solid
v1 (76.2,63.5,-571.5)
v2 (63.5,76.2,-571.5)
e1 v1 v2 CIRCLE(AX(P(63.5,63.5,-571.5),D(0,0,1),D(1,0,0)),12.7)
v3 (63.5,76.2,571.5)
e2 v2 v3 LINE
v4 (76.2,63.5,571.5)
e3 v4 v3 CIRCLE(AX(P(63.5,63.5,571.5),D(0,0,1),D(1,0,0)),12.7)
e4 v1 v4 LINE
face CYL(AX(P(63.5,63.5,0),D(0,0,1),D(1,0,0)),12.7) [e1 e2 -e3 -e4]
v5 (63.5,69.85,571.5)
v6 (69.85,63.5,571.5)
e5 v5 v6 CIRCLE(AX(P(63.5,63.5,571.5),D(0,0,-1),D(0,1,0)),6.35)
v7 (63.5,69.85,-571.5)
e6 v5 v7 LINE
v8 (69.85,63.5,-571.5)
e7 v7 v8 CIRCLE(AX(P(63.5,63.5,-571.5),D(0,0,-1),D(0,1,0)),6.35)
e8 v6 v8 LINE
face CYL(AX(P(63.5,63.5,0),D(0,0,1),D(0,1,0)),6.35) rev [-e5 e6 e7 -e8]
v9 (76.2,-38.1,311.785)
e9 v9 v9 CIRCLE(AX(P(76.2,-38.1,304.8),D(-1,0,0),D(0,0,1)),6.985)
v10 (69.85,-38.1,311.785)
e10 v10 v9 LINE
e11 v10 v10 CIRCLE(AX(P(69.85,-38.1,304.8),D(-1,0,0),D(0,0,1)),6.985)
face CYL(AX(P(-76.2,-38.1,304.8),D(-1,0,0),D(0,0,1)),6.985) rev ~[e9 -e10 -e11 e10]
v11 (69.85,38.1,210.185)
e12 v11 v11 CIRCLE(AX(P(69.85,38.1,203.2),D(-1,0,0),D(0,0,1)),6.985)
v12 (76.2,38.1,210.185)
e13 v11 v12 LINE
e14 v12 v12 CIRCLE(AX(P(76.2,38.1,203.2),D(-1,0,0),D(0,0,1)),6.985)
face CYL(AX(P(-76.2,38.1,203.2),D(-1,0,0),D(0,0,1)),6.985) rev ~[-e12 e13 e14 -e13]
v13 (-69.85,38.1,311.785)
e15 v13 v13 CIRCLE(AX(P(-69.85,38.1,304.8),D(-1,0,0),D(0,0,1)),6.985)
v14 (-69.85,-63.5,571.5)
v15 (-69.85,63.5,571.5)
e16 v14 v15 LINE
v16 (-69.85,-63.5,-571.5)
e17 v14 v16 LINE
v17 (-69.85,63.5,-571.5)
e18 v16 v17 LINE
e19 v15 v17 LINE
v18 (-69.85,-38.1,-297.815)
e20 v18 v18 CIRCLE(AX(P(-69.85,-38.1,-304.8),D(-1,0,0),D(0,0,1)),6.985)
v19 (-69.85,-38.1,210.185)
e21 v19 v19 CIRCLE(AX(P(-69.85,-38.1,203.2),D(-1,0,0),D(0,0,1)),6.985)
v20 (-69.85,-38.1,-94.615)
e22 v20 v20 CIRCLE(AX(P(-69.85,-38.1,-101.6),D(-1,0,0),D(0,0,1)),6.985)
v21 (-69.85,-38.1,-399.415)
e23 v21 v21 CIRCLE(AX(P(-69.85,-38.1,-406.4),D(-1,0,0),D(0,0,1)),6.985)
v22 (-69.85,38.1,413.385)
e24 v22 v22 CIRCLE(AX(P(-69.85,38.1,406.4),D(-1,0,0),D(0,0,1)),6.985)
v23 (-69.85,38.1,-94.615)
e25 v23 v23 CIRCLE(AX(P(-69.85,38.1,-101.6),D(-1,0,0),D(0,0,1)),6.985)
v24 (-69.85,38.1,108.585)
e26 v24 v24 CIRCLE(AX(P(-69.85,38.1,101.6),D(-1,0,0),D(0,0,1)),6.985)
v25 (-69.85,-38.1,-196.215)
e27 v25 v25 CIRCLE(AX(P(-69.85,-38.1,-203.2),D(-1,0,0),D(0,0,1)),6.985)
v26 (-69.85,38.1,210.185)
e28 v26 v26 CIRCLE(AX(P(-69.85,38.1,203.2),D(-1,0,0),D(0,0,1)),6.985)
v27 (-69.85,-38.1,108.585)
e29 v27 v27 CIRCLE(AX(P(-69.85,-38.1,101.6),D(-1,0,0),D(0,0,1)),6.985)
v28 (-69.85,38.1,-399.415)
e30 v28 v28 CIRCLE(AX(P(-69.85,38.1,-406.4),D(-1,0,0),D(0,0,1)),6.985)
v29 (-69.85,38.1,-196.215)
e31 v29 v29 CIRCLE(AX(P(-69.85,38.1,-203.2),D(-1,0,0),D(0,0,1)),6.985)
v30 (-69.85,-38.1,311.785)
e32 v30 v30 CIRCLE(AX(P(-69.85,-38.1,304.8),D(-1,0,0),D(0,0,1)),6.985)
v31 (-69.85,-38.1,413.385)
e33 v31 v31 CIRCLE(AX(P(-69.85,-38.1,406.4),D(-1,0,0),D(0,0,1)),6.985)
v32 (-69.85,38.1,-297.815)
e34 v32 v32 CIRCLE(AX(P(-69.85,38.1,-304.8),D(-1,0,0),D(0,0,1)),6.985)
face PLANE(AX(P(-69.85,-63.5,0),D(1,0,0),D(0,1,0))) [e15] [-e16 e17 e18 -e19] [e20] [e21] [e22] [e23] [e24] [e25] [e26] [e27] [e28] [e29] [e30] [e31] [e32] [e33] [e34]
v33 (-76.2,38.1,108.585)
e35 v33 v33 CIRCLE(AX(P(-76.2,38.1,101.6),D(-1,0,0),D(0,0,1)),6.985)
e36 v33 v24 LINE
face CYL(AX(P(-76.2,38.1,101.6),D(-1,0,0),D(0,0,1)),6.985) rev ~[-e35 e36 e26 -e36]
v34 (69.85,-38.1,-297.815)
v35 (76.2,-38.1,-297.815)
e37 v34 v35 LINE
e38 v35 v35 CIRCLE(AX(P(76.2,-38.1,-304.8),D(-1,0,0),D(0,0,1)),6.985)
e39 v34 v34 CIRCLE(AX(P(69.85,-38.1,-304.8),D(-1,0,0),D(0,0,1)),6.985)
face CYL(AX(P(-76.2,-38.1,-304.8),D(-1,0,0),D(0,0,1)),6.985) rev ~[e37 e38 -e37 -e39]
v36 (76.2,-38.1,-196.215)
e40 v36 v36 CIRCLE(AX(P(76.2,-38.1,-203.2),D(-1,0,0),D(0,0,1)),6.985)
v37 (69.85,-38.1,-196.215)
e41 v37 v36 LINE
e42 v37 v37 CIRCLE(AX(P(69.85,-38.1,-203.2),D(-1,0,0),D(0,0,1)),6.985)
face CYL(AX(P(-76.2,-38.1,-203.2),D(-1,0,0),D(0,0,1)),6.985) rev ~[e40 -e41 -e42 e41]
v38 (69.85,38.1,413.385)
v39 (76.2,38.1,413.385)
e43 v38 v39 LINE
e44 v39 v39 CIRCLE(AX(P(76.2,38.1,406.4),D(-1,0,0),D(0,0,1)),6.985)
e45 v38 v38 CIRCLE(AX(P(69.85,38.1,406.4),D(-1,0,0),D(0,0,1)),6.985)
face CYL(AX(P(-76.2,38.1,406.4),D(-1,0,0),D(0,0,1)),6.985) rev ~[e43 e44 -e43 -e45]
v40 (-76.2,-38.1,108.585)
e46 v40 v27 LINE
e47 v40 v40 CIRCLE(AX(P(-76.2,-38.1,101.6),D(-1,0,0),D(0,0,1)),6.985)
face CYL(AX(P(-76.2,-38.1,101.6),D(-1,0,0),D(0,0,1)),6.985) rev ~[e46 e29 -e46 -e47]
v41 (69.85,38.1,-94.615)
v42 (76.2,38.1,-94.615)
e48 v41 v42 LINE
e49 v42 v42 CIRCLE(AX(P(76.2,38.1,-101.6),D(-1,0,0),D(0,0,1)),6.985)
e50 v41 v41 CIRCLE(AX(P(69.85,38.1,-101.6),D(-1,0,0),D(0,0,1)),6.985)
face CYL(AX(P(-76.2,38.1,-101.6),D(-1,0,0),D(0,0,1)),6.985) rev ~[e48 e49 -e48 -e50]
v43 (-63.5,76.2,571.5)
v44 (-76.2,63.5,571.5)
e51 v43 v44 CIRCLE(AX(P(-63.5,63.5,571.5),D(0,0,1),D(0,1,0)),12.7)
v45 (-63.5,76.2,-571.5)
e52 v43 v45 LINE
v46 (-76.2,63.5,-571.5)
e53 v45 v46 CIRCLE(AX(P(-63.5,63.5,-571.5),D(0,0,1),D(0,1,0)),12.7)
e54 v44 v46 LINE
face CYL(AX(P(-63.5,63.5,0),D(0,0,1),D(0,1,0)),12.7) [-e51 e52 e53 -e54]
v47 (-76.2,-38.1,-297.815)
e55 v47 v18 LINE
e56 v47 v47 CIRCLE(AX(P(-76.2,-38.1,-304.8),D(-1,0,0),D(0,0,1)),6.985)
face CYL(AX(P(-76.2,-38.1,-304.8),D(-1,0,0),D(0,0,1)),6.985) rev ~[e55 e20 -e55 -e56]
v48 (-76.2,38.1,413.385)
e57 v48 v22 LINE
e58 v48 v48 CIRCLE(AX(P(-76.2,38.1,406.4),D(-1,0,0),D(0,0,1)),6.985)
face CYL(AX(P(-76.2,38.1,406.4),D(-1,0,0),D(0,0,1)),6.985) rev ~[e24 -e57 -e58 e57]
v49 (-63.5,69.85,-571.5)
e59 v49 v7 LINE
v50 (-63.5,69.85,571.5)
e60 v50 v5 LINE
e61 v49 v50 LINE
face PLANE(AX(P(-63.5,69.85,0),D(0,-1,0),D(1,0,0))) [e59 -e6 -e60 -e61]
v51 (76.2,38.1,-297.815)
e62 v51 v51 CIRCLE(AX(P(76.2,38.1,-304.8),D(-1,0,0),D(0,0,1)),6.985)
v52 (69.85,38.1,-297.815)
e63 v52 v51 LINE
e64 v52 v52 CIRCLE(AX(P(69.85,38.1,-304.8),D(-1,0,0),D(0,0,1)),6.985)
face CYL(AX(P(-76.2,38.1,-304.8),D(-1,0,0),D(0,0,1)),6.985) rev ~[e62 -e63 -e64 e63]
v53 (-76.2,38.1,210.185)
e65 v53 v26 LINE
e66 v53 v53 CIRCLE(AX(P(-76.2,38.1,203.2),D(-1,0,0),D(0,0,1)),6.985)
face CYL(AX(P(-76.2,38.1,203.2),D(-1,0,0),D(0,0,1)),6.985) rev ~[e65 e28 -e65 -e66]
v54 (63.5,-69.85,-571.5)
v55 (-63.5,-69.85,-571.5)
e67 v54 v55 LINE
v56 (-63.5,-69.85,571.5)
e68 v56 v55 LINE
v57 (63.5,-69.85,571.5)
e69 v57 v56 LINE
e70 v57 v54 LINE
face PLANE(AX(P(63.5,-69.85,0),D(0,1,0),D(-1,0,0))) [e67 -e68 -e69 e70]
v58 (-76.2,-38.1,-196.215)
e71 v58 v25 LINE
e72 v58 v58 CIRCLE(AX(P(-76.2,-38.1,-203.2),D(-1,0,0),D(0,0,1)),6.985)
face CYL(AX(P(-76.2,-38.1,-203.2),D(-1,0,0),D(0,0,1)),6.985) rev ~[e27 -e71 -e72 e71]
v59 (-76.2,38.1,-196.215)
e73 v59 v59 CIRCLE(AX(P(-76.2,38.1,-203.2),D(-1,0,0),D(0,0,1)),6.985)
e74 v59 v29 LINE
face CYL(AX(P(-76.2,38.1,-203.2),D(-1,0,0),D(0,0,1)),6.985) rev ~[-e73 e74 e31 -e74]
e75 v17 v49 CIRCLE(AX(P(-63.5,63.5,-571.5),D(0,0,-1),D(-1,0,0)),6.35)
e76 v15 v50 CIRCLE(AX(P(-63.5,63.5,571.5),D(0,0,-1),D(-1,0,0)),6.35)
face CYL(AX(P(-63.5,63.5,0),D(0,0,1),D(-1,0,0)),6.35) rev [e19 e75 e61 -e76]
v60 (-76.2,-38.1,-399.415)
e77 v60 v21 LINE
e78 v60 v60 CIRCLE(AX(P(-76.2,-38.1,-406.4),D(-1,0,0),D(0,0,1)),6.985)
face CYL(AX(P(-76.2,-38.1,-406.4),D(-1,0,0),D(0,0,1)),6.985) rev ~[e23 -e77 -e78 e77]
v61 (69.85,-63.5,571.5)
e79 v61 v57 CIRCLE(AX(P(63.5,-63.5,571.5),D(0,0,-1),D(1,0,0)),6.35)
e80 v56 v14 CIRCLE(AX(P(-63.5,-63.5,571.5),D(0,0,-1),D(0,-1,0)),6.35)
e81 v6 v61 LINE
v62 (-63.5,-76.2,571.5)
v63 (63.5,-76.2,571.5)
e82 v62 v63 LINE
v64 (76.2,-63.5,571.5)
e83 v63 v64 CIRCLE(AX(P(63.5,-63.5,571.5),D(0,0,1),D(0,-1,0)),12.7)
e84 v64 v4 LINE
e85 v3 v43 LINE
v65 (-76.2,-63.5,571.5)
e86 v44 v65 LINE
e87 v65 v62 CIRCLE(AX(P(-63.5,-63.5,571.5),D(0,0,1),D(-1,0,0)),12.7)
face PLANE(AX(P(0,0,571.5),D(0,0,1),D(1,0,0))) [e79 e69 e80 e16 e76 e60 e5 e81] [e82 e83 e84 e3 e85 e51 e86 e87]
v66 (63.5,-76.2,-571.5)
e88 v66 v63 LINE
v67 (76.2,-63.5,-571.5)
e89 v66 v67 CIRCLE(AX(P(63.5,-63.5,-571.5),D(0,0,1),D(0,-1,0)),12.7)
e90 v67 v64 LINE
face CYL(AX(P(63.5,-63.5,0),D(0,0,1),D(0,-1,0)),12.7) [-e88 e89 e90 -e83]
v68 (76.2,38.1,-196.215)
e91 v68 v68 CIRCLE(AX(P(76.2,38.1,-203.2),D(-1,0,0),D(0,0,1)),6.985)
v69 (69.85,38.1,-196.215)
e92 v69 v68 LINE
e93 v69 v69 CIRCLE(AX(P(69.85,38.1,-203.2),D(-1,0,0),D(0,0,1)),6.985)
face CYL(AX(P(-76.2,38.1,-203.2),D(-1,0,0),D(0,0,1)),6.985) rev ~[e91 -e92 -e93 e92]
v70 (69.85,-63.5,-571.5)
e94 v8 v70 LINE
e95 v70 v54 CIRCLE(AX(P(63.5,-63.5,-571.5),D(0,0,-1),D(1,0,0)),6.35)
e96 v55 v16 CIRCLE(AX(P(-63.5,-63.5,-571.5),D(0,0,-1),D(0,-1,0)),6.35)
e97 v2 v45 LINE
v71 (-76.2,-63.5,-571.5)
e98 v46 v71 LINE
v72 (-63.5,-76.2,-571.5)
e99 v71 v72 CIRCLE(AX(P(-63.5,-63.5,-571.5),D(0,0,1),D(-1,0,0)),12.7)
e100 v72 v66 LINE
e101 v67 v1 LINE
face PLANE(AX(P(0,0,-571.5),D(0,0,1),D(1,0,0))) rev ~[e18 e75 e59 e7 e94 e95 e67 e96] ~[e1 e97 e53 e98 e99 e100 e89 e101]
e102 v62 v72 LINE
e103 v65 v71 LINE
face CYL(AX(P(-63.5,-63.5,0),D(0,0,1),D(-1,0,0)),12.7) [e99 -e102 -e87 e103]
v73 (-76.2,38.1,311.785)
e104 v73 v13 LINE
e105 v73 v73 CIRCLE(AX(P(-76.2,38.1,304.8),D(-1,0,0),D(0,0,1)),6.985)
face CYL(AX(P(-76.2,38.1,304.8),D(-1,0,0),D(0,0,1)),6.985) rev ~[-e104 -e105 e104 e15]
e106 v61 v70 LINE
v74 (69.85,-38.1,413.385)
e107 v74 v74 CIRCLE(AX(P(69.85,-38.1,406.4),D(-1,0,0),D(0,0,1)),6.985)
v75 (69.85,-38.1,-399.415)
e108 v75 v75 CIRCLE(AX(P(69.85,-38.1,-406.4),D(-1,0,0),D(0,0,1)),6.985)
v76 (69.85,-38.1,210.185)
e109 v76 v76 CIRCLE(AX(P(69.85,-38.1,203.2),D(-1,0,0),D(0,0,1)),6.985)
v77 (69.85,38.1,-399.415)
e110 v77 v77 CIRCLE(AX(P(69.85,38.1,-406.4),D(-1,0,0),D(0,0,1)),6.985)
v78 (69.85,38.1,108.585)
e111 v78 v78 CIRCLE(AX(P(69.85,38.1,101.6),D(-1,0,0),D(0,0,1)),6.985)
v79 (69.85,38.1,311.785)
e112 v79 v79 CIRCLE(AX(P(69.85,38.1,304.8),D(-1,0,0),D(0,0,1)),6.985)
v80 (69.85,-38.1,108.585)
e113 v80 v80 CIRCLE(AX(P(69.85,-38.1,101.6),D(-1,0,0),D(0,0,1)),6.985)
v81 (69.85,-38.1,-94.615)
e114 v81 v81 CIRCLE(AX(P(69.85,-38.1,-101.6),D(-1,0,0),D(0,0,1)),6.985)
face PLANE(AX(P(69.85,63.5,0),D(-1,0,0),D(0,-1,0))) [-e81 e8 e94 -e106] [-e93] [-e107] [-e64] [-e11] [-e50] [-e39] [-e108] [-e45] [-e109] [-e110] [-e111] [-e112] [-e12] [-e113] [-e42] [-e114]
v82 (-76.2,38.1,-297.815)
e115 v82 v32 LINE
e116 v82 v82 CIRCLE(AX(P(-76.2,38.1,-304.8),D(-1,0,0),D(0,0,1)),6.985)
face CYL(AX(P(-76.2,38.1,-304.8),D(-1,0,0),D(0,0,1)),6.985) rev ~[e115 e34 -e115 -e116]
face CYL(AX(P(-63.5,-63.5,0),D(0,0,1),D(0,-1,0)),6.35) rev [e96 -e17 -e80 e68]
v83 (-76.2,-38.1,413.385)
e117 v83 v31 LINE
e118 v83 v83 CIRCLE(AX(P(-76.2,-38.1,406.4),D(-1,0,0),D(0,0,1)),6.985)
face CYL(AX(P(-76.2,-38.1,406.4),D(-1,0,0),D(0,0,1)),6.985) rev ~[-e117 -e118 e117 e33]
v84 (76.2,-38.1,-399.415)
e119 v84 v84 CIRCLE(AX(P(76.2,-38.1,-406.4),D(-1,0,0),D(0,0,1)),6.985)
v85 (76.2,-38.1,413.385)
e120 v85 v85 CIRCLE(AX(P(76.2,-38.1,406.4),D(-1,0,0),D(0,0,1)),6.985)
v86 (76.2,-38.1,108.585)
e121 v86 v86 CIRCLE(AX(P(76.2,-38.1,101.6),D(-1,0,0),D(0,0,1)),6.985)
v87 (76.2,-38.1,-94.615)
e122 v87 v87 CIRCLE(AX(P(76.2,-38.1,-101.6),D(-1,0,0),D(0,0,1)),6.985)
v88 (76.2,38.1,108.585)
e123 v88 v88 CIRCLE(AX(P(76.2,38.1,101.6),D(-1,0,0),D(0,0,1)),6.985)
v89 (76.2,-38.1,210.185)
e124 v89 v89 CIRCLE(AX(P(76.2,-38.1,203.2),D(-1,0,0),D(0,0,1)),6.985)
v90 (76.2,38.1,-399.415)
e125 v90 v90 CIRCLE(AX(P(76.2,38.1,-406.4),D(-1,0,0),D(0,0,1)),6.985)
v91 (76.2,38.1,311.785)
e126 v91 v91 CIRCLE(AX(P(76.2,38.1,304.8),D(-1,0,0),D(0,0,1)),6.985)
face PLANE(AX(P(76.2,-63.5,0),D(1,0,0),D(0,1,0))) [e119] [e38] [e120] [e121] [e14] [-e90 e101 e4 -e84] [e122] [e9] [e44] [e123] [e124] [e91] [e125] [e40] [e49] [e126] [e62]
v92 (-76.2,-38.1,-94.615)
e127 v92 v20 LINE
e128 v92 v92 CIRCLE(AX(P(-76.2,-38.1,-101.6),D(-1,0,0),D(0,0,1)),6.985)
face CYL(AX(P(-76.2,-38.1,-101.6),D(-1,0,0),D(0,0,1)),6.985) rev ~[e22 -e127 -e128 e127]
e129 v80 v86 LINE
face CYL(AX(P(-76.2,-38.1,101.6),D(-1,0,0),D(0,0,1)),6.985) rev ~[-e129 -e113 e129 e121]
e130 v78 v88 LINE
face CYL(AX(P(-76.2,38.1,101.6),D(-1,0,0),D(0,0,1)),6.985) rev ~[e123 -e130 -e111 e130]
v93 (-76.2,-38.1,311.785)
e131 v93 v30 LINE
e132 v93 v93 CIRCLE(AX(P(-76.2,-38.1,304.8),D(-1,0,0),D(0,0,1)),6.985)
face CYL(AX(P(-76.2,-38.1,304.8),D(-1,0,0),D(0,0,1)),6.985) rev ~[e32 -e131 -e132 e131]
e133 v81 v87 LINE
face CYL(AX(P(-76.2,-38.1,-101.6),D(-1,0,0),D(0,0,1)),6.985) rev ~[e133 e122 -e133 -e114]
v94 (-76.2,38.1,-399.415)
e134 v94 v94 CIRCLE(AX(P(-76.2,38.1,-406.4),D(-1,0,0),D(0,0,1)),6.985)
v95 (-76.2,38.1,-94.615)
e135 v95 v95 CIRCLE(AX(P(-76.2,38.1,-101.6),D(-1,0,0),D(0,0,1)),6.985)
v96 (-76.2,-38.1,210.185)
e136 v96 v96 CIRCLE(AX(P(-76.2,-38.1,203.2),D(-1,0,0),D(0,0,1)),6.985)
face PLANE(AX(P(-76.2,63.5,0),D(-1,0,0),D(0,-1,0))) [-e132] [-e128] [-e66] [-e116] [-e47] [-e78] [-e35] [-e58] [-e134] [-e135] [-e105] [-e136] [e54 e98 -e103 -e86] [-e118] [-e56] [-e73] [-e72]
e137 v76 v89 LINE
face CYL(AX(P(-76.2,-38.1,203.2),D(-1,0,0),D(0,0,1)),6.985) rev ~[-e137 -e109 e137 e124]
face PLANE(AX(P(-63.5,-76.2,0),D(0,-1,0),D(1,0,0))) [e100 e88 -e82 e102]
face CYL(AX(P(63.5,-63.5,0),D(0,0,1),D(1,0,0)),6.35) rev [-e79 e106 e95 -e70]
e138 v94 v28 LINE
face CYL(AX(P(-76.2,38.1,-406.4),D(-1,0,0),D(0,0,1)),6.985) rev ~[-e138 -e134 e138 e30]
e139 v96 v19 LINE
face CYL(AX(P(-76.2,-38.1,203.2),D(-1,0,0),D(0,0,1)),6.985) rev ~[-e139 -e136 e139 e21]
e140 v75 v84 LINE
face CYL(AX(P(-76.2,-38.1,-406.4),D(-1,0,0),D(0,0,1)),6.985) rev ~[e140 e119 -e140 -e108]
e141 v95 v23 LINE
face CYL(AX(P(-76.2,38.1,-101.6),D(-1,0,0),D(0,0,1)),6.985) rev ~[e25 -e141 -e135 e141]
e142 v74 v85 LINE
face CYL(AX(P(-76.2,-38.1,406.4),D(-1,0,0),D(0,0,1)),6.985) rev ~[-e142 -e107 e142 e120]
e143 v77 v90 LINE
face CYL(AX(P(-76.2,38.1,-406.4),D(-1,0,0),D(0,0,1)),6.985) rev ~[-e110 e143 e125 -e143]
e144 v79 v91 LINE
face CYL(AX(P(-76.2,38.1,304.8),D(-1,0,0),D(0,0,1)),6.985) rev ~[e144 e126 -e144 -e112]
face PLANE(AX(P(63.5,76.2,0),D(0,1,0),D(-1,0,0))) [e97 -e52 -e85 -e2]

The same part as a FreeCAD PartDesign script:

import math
import FreeCAD as App
import Part
import Sketcher
Q = App.Units.Quantity

doc = App.newDocument("Part")
params = doc.addObject("Spreadsheet::Sheet", "Params")
for row, (alias, value) in enumerate([
    ("sketch1_radius", "0.5 in"),
    ("sketch1_width", "5 in"),
    ("sketch1_radius2", "0.25 in"),
    ("pad1_length", "45 in"),
    ("sketch2_diameter", "0.55 in"),
], start=1):
    params.set(f"A{row}", alias)
    params.set(f"B{row}", "=" + value)
    params.setAlias(f"B{row}", alias)

body = doc.addObject("PartDesign::Body", "Body")

sketch1 = body.newObject("Sketcher::SketchObject", "Sketch")
sketch1.AttachmentSupport = (doc.getObject("XY_Plane"), [""])
sketch1.MapMode = "FlatFace"
sketch1.addGeometry([
    Part.LineSegment(App.Vector(-64, -76, 0), App.Vector(64, -76, 0)),
    Part.ArcOfCircle(Part.Circle(App.Vector(64, -64, 0), App.Vector(0, 0, 1), 13), math.radians(-90), math.radians(0)),
    Part.LineSegment(App.Vector(76, -64, 0), App.Vector(76, 64, 0)),
    Part.ArcOfCircle(Part.Circle(App.Vector(64, 64, 0), App.Vector(0, 0, 1), 13), math.radians(0), math.radians(90)),
    Part.LineSegment(App.Vector(64, 76, 0), App.Vector(-64, 76, 0)),
    Part.ArcOfCircle(Part.Circle(App.Vector(-64, 64, 0), App.Vector(0, 0, 1), 13), math.radians(90), math.radians(180)),
    Part.LineSegment(App.Vector(-76, 64, 0), App.Vector(-76, -64, 0)),
    Part.ArcOfCircle(Part.Circle(App.Vector(-64, -64, 0), App.Vector(0, 0, 1), 13), math.radians(180), math.radians(270)),
    Part.ArcOfCircle(Part.Circle(App.Vector(-64, 64, 0), App.Vector(0, 0, 1), 6), math.radians(90), math.radians(180)),
    Part.LineSegment(App.Vector(-64, 70, 0), App.Vector(64, 70, 0)),
    Part.ArcOfCircle(Part.Circle(App.Vector(64, 64, 0), App.Vector(0, 0, 1), 6), math.radians(0), math.radians(90)),
    Part.LineSegment(App.Vector(70, 64, 0), App.Vector(70, -64, 0)),
    Part.ArcOfCircle(Part.Circle(App.Vector(64, -64, 0), App.Vector(0, 0, 1), 6), math.radians(-90), math.radians(0)),
    Part.LineSegment(App.Vector(64, -70, 0), App.Vector(-64, -70, 0)),
    Part.ArcOfCircle(Part.Circle(App.Vector(-64, -64, 0), App.Vector(0, 0, 1), 6), math.radians(180), math.radians(270)),
    Part.LineSegment(App.Vector(-70, -64, 0), App.Vector(-70, 64, 0)),
], False)
sketch1.addConstraint([
    Sketcher.Constraint("Tangent", 0, 2, 1, 1),
    Sketcher.Constraint("Tangent", 1, 2, 2, 1),
    Sketcher.Constraint("Tangent", 2, 2, 3, 1),
    Sketcher.Constraint("Tangent", 3, 2, 4, 1),
    Sketcher.Constraint("Tangent", 4, 2, 5, 1),
    Sketcher.Constraint("Tangent", 5, 2, 6, 1),
    Sketcher.Constraint("Tangent", 6, 2, 7, 1),
    Sketcher.Constraint("Tangent", 7, 2, 0, 1),
    Sketcher.Constraint("Tangent", 8, 1, 9, 1),
    Sketcher.Constraint("Tangent", 9, 2, 10, 2),
    Sketcher.Constraint("Tangent", 10, 1, 11, 1),
    Sketcher.Constraint("Tangent", 11, 2, 12, 2),
    Sketcher.Constraint("Tangent", 12, 1, 13, 1),
    Sketcher.Constraint("Tangent", 13, 2, 14, 2),
    Sketcher.Constraint("Tangent", 14, 1, 15, 1),
    Sketcher.Constraint("Tangent", 15, 2, 8, 2),
    Sketcher.Constraint("Horizontal", 0),
    Sketcher.Constraint("Vertical", 2),
    Sketcher.Constraint("Horizontal", 4),
    Sketcher.Constraint("Vertical", 6),
    Sketcher.Constraint("Horizontal", 9),
    Sketcher.Constraint("Vertical", 11),
    Sketcher.Constraint("Horizontal", 13),
    Sketcher.Constraint("Vertical", 15),
    Sketcher.Constraint("Coincident", 8, 3, 5, 3),
    Sketcher.Constraint("Coincident", 10, 3, 3, 3),
    Sketcher.Constraint("Coincident", 12, 3, 1, 3),
    Sketcher.Constraint("Equal", 1, 3),
    Sketcher.Constraint("Equal", 3, 5),
    Sketcher.Constraint("Equal", 5, 7),
    Sketcher.Constraint("Equal", 12, 14),
    Sketcher.Constraint("Symmetric", 1, 3, 5, 3, -1, 1),
    Sketcher.Constraint("Equal", 13, 2),
    Sketcher.Constraint("Radius", 1, Q("0.5 in")),
    Sketcher.Constraint("DistanceX", 0, 1, 0, 2, Q("5 in")),
    Sketcher.Constraint("Radius", 8, Q("0.25 in")),
])
sketch1.setExpression("Constraints[33]", "Params.sketch1_radius")
sketch1.setExpression("Constraints[34]", "Params.sketch1_width")
sketch1.setExpression("Constraints[35]", "Params.sketch1_radius2")
pad1 = body.newObject("PartDesign::Pad", "Pad")
pad1.Profile = sketch1
pad1.setExpression("Length", "Params.pad1_length")
pad1.Midplane = True

sketch2 = body.newObject("Sketcher::SketchObject", "Sketch001")
sketch2.AttachmentSupport = (doc.getObject("YZ_Plane"), [""])
sketch2.MapMode = "FlatFace"
sketch2.AttachmentOffset = App.Placement(App.Vector(0, 0, -3 * 25.4), App.Rotation())
sketch2.addGeometry([
    Part.Circle(App.Vector(38, -102, 0), App.Vector(0, 0, 1), 7),
    Part.Circle(App.Vector(38, -203, 0), App.Vector(0, 0, 1), 7),
    Part.Circle(App.Vector(38, -305, 0), App.Vector(0, 0, 1), 7),
    Part.Circle(App.Vector(-38, -305, 0), App.Vector(0, 0, 1), 7),
    Part.Circle(App.Vector(-38, -203, 0), App.Vector(0, 0, 1), 7),
    Part.Circle(App.Vector(-38, -102, 0), App.Vector(0, 0, 1), 7),
    Part.Circle(App.Vector(-38, 102, 0), App.Vector(0, 0, 1), 7),
    Part.Circle(App.Vector(-38, 203, 0), App.Vector(0, 0, 1), 7),
    Part.Circle(App.Vector(-38, 305, 0), App.Vector(0, 0, 1), 7),
    Part.Circle(App.Vector(38, 305, 0), App.Vector(0, 0, 1), 7),
    Part.Circle(App.Vector(38, 203, 0), App.Vector(0, 0, 1), 7),
    Part.Circle(App.Vector(38, 102, 0), App.Vector(0, 0, 1), 7),
    Part.Circle(App.Vector(38, -406, 0), App.Vector(0, 0, 1), 7),
    Part.Circle(App.Vector(-38, -406, 0), App.Vector(0, 0, 1), 7),
    Part.Circle(App.Vector(-38, 406, 0), App.Vector(0, 0, 1), 7),
    Part.Circle(App.Vector(38, 406, 0), App.Vector(0, 0, 1), 7),
], False)
sketch2.addConstraint([
    Sketcher.Constraint("Equal", 0, 1),
    Sketcher.Constraint("Equal", 1, 2),
    Sketcher.Constraint("Equal", 2, 3),
    Sketcher.Constraint("Equal", 3, 4),
    Sketcher.Constraint("Equal", 4, 5),
    Sketcher.Constraint("Equal", 5, 6),
    Sketcher.Constraint("Equal", 6, 7),
    Sketcher.Constraint("Equal", 7, 8),
    Sketcher.Constraint("Equal", 8, 9),
    Sketcher.Constraint("Equal", 9, 10),
    Sketcher.Constraint("Equal", 10, 11),
    Sketcher.Constraint("Equal", 11, 12),
    Sketcher.Constraint("Equal", 12, 13),
    Sketcher.Constraint("Equal", 13, 14),
    Sketcher.Constraint("Equal", 14, 15),
    Sketcher.Constraint("Symmetric", 0, 3, 6, 3, -1, 1),
    Sketcher.Constraint("Symmetric", 1, 3, 7, 3, -1, 1),
    Sketcher.Constraint("Symmetric", 2, 3, 8, 3, -1, 1),
    Sketcher.Constraint("Symmetric", 3, 3, 9, 3, -1, 1),
    Sketcher.Constraint("Symmetric", 4, 3, 10, 3, -1, 1),
    Sketcher.Constraint("Symmetric", 5, 3, 11, 3, -1, 1),
    Sketcher.Constraint("Symmetric", 12, 3, 14, 3, -1, 1),
    Sketcher.Constraint("Symmetric", 13, 3, 15, 3, -1, 1),
    Sketcher.Constraint("Symmetric", 2, 3, 3, 3, -2),
    Sketcher.Constraint("Symmetric", 1, 3, 4, 3, -2),
    Sketcher.Constraint("Symmetric", 0, 3, 5, 3, -2),
    Sketcher.Constraint("Symmetric", 12, 3, 13, 3, -2),
    Sketcher.Constraint("Vertical", 0, 3, 1, 3),
    Sketcher.Constraint("Vertical", 1, 3, 2, 3),
    Sketcher.Constraint("Vertical", 11, 3, 12, 3),
    Sketcher.Constraint("Diameter", 0, Q("0.55 in")),
    Sketcher.Constraint("DistanceY", 0, 3, -1, 1, Q("4 in")),
    Sketcher.Constraint("DistanceY", 1, 3, -1, 1, Q("8 in")),
    Sketcher.Constraint("DistanceY", 2, 3, -1, 1, Q("12 in")),
    Sketcher.Constraint("DistanceY", 12, 3, -1, 1, Q("16 in")),
    Sketcher.Constraint("DistanceX", 3, 3, 2, 3, Q("3 in")),
])
sketch2.setExpression("Constraints[30]", "Params.sketch2_diameter")
pocket1 = body.newObject("PartDesign::Pocket", "Pocket")
pocket1.Profile = sketch2
pocket1.Type = "ThroughAll"
pocket1.Reversed = True

doc.recompute()
